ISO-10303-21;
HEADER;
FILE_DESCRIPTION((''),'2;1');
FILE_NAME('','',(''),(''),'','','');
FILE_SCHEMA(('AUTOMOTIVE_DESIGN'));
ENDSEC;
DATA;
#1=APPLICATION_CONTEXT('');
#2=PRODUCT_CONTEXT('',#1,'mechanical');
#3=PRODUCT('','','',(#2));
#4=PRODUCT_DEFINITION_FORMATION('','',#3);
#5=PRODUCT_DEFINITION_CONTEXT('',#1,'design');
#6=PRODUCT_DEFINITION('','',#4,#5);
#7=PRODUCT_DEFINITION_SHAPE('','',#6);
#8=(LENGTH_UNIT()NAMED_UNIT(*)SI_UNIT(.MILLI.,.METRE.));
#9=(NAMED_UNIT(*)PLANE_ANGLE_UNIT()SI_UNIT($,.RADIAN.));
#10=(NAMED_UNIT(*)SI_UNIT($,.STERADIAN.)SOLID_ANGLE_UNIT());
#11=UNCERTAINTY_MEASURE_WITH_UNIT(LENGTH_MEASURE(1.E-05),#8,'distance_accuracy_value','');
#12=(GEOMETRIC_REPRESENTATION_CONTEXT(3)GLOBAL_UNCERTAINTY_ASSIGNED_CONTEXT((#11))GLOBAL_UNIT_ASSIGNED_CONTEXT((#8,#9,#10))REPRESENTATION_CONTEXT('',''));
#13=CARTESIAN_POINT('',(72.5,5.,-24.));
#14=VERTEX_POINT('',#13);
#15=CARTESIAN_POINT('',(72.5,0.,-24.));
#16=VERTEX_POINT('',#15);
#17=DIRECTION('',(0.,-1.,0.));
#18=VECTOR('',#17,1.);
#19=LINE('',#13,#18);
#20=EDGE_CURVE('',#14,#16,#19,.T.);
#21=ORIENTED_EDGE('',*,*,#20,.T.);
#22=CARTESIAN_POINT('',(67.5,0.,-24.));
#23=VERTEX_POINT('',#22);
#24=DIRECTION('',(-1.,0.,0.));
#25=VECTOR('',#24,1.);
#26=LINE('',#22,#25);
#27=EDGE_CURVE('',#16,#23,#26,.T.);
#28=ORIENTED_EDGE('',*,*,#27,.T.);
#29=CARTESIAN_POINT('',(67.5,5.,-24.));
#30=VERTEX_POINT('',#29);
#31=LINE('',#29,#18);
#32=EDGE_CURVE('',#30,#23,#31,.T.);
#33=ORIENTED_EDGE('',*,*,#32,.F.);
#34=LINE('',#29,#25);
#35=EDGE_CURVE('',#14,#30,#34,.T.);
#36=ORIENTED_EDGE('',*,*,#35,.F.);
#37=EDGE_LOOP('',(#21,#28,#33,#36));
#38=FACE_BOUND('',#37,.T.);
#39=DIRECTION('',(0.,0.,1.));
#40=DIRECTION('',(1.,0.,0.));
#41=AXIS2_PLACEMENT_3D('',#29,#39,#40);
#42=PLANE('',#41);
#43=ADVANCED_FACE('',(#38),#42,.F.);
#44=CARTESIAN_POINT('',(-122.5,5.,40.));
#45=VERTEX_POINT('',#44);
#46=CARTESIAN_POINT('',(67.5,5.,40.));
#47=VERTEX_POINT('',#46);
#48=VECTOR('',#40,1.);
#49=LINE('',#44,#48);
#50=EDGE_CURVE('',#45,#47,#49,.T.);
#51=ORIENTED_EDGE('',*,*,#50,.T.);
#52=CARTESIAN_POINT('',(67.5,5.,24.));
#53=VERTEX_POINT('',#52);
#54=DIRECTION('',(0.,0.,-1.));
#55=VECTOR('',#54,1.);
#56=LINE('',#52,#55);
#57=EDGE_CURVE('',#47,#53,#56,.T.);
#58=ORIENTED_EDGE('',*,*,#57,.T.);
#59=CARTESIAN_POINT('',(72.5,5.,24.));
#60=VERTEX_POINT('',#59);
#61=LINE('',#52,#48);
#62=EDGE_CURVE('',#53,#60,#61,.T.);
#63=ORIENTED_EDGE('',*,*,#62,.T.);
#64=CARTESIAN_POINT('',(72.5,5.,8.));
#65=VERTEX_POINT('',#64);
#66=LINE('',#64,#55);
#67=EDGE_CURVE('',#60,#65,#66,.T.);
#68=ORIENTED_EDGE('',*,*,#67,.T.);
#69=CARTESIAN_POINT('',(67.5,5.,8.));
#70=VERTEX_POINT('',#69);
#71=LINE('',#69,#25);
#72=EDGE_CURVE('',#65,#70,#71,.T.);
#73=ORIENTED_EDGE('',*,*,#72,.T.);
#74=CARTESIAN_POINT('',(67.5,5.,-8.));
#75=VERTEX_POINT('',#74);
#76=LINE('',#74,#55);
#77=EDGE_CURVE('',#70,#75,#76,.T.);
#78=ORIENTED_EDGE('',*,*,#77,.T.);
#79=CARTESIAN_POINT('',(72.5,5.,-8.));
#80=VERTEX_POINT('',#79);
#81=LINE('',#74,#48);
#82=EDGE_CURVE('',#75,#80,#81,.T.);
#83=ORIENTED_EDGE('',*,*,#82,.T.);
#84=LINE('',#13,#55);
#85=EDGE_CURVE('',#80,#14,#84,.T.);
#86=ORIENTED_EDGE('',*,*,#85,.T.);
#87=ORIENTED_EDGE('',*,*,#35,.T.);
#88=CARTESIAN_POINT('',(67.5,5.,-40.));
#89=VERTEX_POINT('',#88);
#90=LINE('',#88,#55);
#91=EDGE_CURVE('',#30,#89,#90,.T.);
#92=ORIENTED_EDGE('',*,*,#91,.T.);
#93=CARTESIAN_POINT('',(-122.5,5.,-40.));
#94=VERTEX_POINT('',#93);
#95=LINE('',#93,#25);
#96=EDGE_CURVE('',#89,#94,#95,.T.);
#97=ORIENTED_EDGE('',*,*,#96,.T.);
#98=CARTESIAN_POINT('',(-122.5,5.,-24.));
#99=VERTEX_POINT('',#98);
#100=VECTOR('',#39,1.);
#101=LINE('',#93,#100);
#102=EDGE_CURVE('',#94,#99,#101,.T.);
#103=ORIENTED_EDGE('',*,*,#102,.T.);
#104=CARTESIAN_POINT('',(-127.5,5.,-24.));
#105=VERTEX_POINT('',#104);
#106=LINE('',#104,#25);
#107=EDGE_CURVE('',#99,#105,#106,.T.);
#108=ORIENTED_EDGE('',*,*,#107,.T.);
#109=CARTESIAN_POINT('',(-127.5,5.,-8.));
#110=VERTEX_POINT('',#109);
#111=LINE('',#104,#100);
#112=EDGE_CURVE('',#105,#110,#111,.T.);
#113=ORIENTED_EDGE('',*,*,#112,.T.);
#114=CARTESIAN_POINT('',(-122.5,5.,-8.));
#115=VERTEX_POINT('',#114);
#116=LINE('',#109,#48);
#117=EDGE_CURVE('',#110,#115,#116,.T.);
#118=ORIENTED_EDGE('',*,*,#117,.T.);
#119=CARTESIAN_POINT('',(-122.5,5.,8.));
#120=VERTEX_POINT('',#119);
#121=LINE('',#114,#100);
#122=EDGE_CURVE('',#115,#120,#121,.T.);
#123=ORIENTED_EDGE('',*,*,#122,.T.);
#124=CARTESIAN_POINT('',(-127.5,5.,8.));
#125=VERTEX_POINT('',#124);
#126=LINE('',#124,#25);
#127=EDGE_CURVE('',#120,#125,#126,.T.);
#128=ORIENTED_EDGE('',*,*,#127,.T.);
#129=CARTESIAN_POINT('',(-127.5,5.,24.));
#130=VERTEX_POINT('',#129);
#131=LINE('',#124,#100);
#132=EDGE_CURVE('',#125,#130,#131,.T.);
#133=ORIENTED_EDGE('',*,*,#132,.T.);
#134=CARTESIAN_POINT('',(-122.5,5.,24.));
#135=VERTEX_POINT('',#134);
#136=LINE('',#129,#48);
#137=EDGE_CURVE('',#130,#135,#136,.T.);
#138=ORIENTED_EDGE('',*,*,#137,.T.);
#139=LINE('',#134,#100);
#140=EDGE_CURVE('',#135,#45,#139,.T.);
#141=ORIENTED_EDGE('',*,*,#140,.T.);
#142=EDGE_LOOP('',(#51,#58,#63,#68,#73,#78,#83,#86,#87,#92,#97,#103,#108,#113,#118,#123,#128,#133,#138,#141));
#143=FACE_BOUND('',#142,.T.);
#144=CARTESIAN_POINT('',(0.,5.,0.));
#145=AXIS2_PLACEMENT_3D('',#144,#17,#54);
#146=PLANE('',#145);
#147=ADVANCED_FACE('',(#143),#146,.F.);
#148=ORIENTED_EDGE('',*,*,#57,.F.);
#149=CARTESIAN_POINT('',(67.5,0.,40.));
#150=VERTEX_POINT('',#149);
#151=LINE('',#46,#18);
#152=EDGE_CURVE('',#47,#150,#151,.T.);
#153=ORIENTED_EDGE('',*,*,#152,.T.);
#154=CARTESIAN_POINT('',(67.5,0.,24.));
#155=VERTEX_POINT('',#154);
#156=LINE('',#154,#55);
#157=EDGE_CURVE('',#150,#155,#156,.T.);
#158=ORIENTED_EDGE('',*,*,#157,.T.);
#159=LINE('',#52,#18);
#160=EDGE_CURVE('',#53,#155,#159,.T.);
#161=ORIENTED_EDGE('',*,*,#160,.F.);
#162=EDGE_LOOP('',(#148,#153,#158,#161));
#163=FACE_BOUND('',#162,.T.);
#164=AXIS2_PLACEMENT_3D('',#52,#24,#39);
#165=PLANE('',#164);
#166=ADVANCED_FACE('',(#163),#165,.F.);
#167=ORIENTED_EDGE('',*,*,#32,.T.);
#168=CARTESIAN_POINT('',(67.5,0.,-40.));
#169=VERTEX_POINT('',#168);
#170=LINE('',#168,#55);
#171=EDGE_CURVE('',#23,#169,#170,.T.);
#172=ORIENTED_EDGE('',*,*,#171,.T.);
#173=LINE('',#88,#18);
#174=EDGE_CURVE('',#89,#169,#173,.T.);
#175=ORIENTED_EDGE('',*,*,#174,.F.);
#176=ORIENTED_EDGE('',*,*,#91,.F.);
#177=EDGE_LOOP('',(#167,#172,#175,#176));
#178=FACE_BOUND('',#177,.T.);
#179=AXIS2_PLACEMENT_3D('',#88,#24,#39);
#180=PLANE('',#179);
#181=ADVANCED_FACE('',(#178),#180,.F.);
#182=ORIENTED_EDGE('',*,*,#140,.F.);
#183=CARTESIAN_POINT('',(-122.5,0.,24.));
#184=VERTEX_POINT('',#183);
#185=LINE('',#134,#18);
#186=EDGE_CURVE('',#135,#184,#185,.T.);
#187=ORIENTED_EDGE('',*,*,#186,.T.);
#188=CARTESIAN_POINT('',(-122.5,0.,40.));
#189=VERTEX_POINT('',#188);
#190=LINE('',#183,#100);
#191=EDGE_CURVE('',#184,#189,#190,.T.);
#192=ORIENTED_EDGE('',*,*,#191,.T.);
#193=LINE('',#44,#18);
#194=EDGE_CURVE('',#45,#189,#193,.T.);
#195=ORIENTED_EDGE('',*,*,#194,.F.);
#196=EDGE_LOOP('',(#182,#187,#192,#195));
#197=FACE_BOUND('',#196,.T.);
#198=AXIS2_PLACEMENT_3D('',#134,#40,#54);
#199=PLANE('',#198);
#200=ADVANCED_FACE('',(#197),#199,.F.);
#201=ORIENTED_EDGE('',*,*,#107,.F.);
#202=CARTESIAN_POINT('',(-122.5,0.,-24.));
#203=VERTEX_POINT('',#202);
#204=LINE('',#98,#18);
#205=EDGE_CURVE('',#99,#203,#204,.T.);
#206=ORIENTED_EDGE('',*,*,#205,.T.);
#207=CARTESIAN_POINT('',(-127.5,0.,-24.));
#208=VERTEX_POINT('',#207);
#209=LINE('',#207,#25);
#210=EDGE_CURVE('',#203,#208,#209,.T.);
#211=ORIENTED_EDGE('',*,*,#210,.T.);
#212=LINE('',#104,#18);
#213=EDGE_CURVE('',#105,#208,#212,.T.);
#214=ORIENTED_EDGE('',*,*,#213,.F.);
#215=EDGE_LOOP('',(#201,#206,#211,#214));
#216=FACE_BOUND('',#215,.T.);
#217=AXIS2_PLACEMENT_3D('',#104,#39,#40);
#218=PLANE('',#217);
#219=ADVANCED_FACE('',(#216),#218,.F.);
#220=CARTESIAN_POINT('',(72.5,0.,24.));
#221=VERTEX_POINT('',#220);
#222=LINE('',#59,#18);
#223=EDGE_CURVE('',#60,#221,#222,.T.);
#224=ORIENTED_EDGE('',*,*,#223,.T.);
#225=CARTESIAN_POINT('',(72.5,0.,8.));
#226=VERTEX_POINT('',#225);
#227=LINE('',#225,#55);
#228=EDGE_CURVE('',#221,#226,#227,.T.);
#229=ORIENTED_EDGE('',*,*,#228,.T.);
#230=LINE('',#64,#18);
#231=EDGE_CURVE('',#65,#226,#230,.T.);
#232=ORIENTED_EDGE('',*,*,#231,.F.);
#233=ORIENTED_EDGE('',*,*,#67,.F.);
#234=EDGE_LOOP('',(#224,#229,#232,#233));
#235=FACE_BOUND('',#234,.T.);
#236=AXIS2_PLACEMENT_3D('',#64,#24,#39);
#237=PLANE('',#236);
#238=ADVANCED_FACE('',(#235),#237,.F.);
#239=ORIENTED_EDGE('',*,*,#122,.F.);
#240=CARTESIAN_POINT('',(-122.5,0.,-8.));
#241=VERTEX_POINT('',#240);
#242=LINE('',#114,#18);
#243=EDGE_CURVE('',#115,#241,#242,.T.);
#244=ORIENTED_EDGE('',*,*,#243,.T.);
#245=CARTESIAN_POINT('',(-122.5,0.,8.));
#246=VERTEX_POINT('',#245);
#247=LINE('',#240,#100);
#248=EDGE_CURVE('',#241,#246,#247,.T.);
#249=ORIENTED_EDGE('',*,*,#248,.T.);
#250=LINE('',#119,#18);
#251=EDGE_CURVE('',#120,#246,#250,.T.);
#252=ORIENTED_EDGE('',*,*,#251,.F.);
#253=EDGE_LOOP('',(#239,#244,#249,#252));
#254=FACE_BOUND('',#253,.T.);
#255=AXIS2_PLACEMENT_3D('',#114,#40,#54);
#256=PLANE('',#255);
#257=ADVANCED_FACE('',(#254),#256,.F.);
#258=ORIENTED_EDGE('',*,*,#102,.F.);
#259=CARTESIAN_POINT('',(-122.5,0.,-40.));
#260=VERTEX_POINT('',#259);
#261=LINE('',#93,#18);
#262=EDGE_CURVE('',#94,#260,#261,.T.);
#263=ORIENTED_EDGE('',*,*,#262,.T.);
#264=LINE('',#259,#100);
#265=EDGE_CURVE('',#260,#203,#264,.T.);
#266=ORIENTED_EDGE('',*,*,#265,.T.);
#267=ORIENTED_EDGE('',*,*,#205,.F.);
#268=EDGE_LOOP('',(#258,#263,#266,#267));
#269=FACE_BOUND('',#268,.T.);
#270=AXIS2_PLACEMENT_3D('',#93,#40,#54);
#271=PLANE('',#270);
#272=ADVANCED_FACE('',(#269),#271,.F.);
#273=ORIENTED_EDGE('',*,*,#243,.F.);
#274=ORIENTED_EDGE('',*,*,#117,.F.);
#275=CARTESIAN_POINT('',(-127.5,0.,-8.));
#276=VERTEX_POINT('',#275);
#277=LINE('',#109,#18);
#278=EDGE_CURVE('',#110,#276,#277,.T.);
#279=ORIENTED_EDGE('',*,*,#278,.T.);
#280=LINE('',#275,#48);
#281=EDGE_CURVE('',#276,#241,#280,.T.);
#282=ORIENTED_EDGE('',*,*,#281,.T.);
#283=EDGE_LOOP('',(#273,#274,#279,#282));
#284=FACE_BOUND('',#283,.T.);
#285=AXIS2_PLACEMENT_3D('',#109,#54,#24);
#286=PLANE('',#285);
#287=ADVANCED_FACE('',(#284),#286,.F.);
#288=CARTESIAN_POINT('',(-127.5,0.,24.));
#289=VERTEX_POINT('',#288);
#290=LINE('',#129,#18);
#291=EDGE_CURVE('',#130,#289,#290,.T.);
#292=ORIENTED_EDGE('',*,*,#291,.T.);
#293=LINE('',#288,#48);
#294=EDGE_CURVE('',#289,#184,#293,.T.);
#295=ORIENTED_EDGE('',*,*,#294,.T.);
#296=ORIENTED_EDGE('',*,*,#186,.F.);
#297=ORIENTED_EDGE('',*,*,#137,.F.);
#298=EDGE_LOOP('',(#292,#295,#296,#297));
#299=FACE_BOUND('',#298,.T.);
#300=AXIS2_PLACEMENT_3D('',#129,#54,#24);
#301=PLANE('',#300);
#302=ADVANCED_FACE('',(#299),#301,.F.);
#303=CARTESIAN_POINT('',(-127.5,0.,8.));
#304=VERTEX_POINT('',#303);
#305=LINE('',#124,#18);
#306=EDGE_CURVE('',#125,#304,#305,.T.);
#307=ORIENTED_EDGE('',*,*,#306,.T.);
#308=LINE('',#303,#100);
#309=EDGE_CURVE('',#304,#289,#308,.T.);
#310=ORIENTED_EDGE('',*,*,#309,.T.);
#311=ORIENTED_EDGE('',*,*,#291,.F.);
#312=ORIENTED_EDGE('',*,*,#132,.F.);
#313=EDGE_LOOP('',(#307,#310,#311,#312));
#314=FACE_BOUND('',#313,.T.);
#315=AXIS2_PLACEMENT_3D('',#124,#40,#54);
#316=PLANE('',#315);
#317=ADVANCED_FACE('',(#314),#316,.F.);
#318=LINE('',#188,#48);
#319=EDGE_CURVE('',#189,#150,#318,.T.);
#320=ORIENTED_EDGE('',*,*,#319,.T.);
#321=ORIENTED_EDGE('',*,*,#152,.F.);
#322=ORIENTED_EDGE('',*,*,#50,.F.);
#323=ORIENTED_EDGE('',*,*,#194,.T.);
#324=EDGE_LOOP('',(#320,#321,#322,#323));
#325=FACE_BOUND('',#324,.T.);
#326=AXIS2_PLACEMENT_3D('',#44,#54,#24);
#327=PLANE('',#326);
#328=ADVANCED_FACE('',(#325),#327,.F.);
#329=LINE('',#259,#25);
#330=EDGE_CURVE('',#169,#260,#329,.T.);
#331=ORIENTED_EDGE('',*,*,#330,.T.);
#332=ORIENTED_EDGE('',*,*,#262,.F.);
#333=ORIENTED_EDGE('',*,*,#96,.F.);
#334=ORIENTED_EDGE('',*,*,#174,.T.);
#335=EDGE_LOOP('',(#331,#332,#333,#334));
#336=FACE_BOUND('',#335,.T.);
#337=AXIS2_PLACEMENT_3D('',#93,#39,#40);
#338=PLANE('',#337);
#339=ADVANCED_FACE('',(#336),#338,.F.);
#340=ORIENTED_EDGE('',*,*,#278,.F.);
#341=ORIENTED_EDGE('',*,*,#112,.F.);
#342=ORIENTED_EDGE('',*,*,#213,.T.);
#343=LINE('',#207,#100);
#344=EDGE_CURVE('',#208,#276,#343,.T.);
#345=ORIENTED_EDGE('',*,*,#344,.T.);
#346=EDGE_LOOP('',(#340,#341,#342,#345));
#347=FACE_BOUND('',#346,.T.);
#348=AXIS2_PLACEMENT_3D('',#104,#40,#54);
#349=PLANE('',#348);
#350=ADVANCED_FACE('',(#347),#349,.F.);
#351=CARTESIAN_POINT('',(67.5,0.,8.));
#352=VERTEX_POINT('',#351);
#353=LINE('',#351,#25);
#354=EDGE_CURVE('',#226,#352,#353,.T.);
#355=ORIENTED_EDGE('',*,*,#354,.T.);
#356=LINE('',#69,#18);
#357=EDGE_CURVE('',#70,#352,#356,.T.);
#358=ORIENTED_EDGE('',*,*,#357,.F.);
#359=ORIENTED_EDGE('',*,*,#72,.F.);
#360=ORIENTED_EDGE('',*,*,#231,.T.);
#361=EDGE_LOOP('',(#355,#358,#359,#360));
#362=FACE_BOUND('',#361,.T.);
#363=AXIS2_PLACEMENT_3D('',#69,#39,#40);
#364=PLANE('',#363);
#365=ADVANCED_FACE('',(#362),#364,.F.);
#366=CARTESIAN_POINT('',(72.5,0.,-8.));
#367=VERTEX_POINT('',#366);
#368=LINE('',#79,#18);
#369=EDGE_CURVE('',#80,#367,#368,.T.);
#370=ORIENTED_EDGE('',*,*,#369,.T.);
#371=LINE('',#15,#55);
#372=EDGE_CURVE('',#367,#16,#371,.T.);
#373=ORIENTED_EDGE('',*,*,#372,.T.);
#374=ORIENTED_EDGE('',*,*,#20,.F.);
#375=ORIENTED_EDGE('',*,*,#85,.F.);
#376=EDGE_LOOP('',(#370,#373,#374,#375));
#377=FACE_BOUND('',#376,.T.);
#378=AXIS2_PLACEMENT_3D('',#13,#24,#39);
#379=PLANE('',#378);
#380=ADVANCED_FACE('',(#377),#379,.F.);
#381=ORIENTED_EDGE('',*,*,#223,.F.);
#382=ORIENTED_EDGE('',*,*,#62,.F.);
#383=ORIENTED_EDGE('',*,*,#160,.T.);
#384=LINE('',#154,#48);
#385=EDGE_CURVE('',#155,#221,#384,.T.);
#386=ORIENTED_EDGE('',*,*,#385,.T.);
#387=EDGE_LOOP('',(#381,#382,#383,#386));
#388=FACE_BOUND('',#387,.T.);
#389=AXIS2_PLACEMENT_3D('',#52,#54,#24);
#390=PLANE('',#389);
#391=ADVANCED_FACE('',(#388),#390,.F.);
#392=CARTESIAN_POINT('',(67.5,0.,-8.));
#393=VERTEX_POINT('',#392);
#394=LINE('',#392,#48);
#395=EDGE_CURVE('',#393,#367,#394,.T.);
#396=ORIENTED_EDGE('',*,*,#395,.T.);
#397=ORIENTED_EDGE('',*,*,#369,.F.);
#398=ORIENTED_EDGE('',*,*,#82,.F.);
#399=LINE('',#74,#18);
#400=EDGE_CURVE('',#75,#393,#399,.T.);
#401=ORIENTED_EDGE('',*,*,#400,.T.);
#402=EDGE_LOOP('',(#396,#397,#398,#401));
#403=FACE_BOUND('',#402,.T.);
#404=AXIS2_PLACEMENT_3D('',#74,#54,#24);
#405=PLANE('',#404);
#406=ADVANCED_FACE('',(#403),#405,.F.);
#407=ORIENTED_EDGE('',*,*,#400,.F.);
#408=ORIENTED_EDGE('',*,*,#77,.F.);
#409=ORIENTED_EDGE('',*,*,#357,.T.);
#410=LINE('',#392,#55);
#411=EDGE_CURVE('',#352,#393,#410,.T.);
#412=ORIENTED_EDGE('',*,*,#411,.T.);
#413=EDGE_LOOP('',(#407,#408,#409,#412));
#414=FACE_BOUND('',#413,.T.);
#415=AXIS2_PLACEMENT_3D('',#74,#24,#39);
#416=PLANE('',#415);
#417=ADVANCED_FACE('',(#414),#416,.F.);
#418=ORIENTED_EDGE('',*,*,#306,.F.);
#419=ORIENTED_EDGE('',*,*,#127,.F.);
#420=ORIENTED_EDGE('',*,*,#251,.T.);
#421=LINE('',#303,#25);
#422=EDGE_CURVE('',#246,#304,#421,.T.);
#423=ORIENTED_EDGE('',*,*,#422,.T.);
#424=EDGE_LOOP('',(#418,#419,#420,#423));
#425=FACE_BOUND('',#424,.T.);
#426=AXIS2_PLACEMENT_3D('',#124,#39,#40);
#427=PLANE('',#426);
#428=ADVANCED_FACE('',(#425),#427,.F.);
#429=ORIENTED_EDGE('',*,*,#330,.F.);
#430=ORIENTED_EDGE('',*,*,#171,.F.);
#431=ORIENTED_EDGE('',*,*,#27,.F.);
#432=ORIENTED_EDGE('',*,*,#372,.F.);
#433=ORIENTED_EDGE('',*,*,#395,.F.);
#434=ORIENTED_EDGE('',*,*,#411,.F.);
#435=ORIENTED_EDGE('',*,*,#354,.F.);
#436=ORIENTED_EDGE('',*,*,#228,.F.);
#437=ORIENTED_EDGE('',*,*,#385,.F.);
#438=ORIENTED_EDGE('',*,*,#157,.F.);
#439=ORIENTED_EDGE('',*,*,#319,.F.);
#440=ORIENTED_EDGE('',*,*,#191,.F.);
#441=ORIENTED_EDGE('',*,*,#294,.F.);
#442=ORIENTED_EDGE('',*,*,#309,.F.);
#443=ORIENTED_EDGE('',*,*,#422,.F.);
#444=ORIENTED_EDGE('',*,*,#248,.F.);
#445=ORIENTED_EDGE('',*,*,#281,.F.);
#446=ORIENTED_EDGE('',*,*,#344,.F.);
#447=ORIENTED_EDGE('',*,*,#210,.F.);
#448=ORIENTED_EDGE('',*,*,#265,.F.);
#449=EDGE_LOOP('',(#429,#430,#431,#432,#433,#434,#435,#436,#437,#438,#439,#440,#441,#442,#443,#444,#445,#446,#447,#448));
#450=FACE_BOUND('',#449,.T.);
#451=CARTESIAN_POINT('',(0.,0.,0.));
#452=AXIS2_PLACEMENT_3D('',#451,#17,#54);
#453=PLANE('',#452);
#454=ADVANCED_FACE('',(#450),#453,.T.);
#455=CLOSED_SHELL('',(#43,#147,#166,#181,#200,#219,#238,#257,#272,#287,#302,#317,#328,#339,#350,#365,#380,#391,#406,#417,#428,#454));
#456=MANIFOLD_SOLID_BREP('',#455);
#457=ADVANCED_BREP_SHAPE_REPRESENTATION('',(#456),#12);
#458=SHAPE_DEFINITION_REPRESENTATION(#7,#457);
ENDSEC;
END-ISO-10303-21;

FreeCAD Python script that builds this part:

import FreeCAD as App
import Part
import Sketcher

V = App.Vector


def add_polygon(sketch, points):
    """Adds a closed chain of lines whose ends are joined by coincident constraints."""
    first, n = sketch.GeometryCount, len(points)
    for a, b in zip(points, points[1:] + points[:1]):
        sketch.addGeometry(Part.LineSegment(App.Vector(*a, 0), App.Vector(*b, 0)), False)
    for i in range(n):
        sketch.addConstraint(Sketcher.Constraint("Coincident", first + i, 2, first + (i + 1) % n, 1))

doc = App.newDocument("Part")
body = doc.addObject("PartDesign::Body", "Body")

# Sketch on XZ plane
sketch1 = body.newObject("Sketcher::SketchObject", "Sketch")
sketch1.AttachmentSupport = (doc.getObject("XZ_Plane"), [""])
sketch1.MapMode = "FlatFace"
add_polygon(sketch1, [(-122, -40), (-122, -24), (-128, -24), (-128, -8), (-122, -8), (-122, 8), (-128, 8), (-128, 24), (-122, 24), (-122, 40), (68, 40), (68, 24), (72, 24), (72, 8), (68, 8), (68, -8), (72, -8), (72, -24), (68, -24), (68, -40)])  # lines 0-19
sketch1.addConstraint(Sketcher.Constraint("Vertical", 0))
sketch1.addConstraint(Sketcher.Constraint("Horizontal", 1))
sketch1.addConstraint(Sketcher.Constraint("Vertical", 2))
sketch1.addConstraint(Sketcher.Constraint("Horizontal", 3))
sketch1.addConstraint(Sketcher.Constraint("Vertical", 4))
sketch1.addConstraint(Sketcher.Constraint("Horizontal", 5))
sketch1.addConstraint(Sketcher.Constraint("Vertical", 6))
sketch1.addConstraint(Sketcher.Constraint("Horizontal", 7))
sketch1.addConstraint(Sketcher.Constraint("Vertical", 8))
sketch1.addConstraint(Sketcher.Constraint("Horizontal", 9))
sketch1.addConstraint(Sketcher.Constraint("Vertical", 10))
sketch1.addConstraint(Sketcher.Constraint("Horizontal", 11))
sketch1.addConstraint(Sketcher.Constraint("Vertical", 12))
sketch1.addConstraint(Sketcher.Constraint("Horizontal", 13))
sketch1.addConstraint(Sketcher.Constraint("Vertical", 14))
sketch1.addConstraint(Sketcher.Constraint("Horizontal", 15))
sketch1.addConstraint(Sketcher.Constraint("Vertical", 16))
sketch1.addConstraint(Sketcher.Constraint("Horizontal", 17))
sketch1.addConstraint(Sketcher.Constraint("Vertical", 18))
sketch1.addConstraint(Sketcher.Constraint("Horizontal", 19))
sketch1.addConstraint(Sketcher.Constraint("Symmetric", 2, 2, 5, 2, -1))
sketch1.addConstraint(Sketcher.Constraint("Symmetric", 0, 2, 7, 2, -1))
sketch1.addConstraint(Sketcher.Constraint("Symmetric", 12, 2, 15, 2, -1))
sketch1.addConstraint(Sketcher.Constraint("Symmetric", 10, 2, 17, 2, -1))
sketch1.addConstraint(Sketcher.Constraint("Horizontal", 7, 2, 10, 2))
sketch1.addConstraint(Sketcher.Constraint("Horizontal", 5, 2, 12, 2))
sketch1.addConstraint(Sketcher.Constraint("Vertical", 0, 2, 3, 2))
sketch1.addConstraint(Sketcher.Constraint("Vertical", 10, 2, 13, 2))
sketch1.addConstraint(Sketcher.Constraint("Equal", 7, 11))
sketch1.addConstraint(Sketcher.Constraint("Equal", 0, 2))
sketch1.addConstraint(Sketcher.Constraint("Equal", 2, 4))
sketch1.addConstraint(Sketcher.Constraint("Equal", 6, 8))
sketch1.addConstraint(Sketcher.Constraint("DistanceX", 1, 2, 1, 1, 5.0))
sketch1.addConstraint(Sketcher.Constraint("DistanceX", 9, 1, 9, 2, 190.0))
sketch1.addConstraint(Sketcher.Constraint("DistanceY", 0, 1, 0, 2, 16.0))
sketch1.addConstraint(Sketcher.Constraint("DistanceX", 0, 2, -1, 1, 122.5))
pad1 = body.newObject("PartDesign::Pad", "Pad")
pad1.Profile = sketch1
pad1.Length = 5
pad1.Reversed = True

doc.recompute()
